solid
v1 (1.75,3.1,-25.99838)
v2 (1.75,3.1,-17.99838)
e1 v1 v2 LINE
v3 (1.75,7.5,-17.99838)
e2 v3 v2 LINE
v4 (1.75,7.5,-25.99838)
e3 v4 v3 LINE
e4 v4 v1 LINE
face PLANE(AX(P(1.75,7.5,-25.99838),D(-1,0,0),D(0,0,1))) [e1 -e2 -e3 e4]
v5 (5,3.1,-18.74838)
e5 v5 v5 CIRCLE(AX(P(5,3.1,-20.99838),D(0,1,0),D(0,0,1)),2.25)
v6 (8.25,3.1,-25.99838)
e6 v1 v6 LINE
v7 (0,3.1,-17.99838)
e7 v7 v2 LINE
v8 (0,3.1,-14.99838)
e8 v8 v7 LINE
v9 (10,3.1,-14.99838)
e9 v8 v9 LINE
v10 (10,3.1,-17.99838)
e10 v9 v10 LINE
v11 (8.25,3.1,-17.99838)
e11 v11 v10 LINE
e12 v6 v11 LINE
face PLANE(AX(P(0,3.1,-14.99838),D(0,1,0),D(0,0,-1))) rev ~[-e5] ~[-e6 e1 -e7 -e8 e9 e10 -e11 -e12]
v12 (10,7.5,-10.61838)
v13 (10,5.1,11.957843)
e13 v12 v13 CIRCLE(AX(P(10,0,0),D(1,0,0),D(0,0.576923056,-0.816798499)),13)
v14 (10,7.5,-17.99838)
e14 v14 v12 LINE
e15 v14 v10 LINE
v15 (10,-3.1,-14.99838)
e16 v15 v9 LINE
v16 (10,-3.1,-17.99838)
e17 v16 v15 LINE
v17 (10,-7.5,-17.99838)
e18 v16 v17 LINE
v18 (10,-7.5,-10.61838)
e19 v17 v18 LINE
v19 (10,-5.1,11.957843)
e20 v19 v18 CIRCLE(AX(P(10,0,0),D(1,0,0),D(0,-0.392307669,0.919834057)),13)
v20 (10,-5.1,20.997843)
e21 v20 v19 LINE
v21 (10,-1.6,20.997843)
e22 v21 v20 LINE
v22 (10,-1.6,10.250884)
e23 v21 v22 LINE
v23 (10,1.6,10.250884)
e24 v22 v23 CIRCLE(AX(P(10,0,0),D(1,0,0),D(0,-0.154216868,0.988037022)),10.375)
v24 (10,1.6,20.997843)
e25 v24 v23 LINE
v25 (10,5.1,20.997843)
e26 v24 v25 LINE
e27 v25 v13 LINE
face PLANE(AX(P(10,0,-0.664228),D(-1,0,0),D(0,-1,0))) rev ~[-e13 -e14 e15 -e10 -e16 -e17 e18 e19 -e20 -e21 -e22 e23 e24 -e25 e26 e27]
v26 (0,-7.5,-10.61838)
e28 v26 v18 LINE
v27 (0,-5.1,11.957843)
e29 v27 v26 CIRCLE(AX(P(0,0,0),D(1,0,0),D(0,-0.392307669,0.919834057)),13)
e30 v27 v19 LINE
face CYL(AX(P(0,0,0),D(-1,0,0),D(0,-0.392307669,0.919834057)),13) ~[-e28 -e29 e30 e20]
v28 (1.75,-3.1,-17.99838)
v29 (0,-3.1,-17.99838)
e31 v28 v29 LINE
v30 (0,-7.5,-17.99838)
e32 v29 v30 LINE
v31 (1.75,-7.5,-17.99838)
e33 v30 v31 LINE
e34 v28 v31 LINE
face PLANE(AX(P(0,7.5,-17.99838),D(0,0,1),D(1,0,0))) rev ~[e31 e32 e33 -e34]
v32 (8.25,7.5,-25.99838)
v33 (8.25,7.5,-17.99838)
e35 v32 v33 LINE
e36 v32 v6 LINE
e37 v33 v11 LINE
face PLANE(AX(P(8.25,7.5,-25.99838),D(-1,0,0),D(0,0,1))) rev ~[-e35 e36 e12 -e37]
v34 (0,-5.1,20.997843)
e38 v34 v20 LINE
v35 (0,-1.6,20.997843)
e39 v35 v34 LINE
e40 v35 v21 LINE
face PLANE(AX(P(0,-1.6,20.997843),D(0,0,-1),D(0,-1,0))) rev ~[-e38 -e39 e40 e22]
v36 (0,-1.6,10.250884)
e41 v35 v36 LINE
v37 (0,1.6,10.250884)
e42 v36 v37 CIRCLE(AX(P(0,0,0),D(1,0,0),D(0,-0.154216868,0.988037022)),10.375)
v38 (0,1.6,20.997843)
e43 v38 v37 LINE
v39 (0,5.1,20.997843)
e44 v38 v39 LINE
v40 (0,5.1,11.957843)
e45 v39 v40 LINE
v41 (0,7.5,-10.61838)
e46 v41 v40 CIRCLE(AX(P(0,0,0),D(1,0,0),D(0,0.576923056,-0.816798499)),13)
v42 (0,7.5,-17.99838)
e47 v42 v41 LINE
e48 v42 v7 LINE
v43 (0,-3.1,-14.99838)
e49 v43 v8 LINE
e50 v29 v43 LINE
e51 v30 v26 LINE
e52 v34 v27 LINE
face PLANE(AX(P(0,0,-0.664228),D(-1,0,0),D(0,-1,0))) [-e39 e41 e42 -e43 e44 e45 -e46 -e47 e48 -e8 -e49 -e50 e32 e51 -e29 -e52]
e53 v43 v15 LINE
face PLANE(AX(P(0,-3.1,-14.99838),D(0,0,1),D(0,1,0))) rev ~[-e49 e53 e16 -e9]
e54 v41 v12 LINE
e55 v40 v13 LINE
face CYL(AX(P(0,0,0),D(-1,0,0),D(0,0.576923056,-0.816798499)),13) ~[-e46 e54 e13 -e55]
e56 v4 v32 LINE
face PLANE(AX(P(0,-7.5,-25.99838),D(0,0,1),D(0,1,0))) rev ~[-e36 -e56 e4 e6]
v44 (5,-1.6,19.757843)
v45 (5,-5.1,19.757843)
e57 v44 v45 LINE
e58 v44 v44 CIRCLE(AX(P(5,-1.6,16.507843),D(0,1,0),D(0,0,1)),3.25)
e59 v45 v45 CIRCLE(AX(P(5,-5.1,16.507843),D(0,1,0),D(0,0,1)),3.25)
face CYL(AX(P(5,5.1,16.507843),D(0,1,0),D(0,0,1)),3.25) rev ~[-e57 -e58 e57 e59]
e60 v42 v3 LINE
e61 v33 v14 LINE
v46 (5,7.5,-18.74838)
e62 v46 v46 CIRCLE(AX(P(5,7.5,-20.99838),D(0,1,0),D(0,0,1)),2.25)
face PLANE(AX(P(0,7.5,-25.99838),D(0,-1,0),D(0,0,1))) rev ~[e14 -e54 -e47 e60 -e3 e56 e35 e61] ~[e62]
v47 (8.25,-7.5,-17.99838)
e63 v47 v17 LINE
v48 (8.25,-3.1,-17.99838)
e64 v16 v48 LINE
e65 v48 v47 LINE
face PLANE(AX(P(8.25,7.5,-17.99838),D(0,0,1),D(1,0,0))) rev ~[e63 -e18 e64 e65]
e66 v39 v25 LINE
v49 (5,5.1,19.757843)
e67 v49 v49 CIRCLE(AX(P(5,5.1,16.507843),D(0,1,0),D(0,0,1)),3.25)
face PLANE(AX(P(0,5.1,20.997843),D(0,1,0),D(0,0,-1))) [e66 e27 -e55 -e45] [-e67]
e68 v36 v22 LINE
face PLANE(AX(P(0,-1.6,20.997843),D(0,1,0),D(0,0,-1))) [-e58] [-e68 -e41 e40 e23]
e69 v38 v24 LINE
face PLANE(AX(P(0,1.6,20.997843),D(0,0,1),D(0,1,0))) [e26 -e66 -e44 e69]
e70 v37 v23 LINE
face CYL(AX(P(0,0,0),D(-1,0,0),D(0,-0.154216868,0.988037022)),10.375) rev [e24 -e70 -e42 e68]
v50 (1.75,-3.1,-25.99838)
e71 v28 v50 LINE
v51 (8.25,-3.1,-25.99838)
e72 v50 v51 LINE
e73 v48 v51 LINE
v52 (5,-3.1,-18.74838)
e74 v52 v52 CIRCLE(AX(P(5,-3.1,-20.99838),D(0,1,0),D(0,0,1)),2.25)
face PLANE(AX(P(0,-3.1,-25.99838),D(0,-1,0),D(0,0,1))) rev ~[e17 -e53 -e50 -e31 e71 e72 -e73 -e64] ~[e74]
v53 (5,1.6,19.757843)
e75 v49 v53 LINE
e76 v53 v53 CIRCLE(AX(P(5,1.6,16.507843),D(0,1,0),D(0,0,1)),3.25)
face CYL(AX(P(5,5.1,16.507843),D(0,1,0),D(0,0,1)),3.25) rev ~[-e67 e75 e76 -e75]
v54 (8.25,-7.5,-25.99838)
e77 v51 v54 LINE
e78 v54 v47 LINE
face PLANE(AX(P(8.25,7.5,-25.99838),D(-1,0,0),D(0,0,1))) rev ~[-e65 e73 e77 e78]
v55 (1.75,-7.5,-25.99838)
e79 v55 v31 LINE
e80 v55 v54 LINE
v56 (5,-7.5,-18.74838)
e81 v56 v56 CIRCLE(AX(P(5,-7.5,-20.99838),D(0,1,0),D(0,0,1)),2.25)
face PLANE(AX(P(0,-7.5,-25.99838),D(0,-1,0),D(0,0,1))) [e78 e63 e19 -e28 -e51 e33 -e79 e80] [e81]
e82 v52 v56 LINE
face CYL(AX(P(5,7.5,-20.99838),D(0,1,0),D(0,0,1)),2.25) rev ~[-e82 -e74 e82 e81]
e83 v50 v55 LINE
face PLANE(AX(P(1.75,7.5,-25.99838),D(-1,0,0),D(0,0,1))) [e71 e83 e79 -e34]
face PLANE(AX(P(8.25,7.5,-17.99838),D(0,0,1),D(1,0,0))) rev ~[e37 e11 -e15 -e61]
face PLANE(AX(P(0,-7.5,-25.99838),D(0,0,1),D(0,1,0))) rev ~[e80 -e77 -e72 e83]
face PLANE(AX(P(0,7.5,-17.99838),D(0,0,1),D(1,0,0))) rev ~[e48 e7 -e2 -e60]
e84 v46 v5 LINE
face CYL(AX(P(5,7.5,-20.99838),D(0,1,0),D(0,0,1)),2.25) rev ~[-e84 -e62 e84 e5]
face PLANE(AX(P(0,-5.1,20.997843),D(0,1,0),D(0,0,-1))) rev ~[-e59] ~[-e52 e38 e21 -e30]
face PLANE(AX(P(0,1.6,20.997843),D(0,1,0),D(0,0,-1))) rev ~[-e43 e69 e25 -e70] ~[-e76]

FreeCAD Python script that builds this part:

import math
import FreeCAD as App
import Part
import Sketcher
Q = App.Units.Quantity

doc = App.newDocument("Part")
body = doc.addObject("PartDesign::Body", "Body")

sketch1 = body.newObject("Sketcher::SketchObject", "Sketch")
sketch1.AttachmentSupport = (doc.getObject("YZ_Plane"), [""])
sketch1.MapMode = "FlatFace"
sketch1.addGeometry(Part.ArcOfCircle(Part.Circle(App.Vector(0, 0, 0), App.Vector(0, 0, 1), 10.4), math.radians(99), math.radians(441)), False)
sketch1.addGeometry(Part.LineSegment(App.Vector(-1.6, 10.3, 0), App.Vector(-1.6, 21, 0)), False)
sketch1.addGeometry(Part.LineSegment(App.Vector(-1.6, 21, 0), App.Vector(-5.1, 21, 0)), False)
sketch1.addGeometry(Part.LineSegment(App.Vector(-5.1, 21, 0), App.Vector(-5.1, 12, 0)), False)
sketch1.addGeometry(Part.ArcOfCircle(Part.Circle(App.Vector(0, 0, 0), App.Vector(0, 0, 1), 13), math.radians(113), math.radians(235)), False)
sketch1.addGeometry(Part.LineSegment(App.Vector(-7.5, -10.6, 0), App.Vector(-7.5, -26, 0)), False)
sketch1.addGeometry(Part.LineSegment(App.Vector(-7.5, -26, 0), App.Vector(7.5, -26, 0)), False)
sketch1.addGeometry(Part.LineSegment(App.Vector(7.5, -26, 0), App.Vector(7.5, -10.6, 0)), False)
sketch1.addGeometry(Part.ArcOfCircle(Part.Circle(App.Vector(0, 0, 0), App.Vector(0, 0, 1), 13), math.radians(-55), math.radians(67)), False)
sketch1.addGeometry(Part.LineSegment(App.Vector(5.1, 12, 0), App.Vector(5.1, 21, 0)), False)
sketch1.addGeometry(Part.LineSegment(App.Vector(5.1, 21, 0), App.Vector(1.6, 21, 0)), False)
sketch1.addGeometry(Part.LineSegment(App.Vector(1.6, 21, 0), App.Vector(1.6, 10.3, 0)), False)
sketch1.addConstraint(Sketcher.Constraint("Coincident", 0, 1, 1, 1))
sketch1.addConstraint(Sketcher.Constraint("Coincident", 1, 2, 2, 1))
sketch1.addConstraint(Sketcher.Constraint("Coincident", 2, 2, 3, 1))
sketch1.addConstraint(Sketcher.Constraint("Coincident", 3, 2, 4, 1))
sketch1.addConstraint(Sketcher.Constraint("Coincident", 4, 2, 5, 1))
sketch1.addConstraint(Sketcher.Constraint("Coincident", 5, 2, 6, 1))
sketch1.addConstraint(Sketcher.Constraint("Coincident", 6, 2, 7, 1))
sketch1.addConstraint(Sketcher.Constraint("Coincident", 7, 2, 8, 1))
sketch1.addConstraint(Sketcher.Constraint("Coincident", 8, 2, 9, 1))
sketch1.addConstraint(Sketcher.Constraint("Coincident", 9, 2, 10, 1))
sketch1.addConstraint(Sketcher.Constraint("Coincident", 10, 2, 11, 1))
sketch1.addConstraint(Sketcher.Constraint("Coincident", 11, 2, 0, 2))
sketch1.addConstraint(Sketcher.Constraint("Vertical", 1))
sketch1.addConstraint(Sketcher.Constraint("Horizontal", 2))
sketch1.addConstraint(Sketcher.Constraint("Vertical", 3))
sketch1.addConstraint(Sketcher.Constraint("Vertical", 5))
sketch1.addConstraint(Sketcher.Constraint("Horizontal", 6))
sketch1.addConstraint(Sketcher.Constraint("Vertical", 7))
sketch1.addConstraint(Sketcher.Constraint("Vertical", 9))
sketch1.addConstraint(Sketcher.Constraint("Horizontal", 10))
sketch1.addConstraint(Sketcher.Constraint("Vertical", 11))
sketch1.addConstraint(Sketcher.Constraint("Coincident", 0, 3, -1, 1))
sketch1.addConstraint(Sketcher.Constraint("Coincident", 4, 3, -1, 1))
sketch1.addConstraint(Sketcher.Constraint("Coincident", 8, 3, -1, 1))
sketch1.addConstraint(Sketcher.Constraint("Equal", 4, 8))
sketch1.addConstraint(Sketcher.Constraint("Symmetric", 2, 2, 9, 2, -2))
sketch1.addConstraint(Sketcher.Constraint("Horizontal", 4, 2, 7, 2))
sketch1.addConstraint(Sketcher.Constraint("Horizontal", 0, 1, 11, 2))
sketch1.addConstraint(Sketcher.Constraint("Radius", 4, Q("13 mm")))
sketch1.addConstraint(Sketcher.Constraint("DistanceX", 6, 1, 6, 2, Q("15 mm")))
sketch1.addConstraint(Sketcher.Constraint("DistanceX", 2, 2, 2, 1, Q("3.5 mm")))
sketch1.addConstraint(Sketcher.Constraint("Radius", 0, Q("10.375 mm")))
sketch1.addConstraint(Sketcher.Constraint("DistanceY", 3, 2, 3, 1, Q("9.04 mm")))
sketch1.addConstraint(Sketcher.Constraint("DistanceY", 5, 2, 5, 1, Q("15.38 mm")))
sketch1.addConstraint(Sketcher.Constraint("DistanceX", 0, 1, -1, 1, Q("1.6 mm")))
pad1 = body.newObject("PartDesign::Pad", "Pad")
pad1.Profile = sketch1
pad1.Length = 10

sketch2 = body.newObject("Sketcher::SketchObject", "Sketch001")
sketch2.AttachmentSupport = (doc.getObject("YZ_Plane"), [""])
sketch2.MapMode = "FlatFace"
sketch2.addGeometry(Part.LineSegment(App.Vector(-3, -26, 0), App.Vector(-3, -15, 0)), False)
sketch2.addGeometry(Part.LineSegment(App.Vector(-3, -15, 0), App.Vector(3, -15, 0)), False)
sketch2.addGeometry(Part.LineSegment(App.Vector(3, -15, 0), App.Vector(3, -26, 0)), False)
sketch2.addGeometry(Part.LineSegment(App.Vector(3, -26, 0), App.Vector(-3, -26, 0)), False)
sketch2.addConstraint(Sketcher.Constraint("Coincident", 0, 2, 1, 1))
sketch2.addConstraint(Sketcher.Constraint("Coincident", 1, 2, 2, 1))
sketch2.addConstraint(Sketcher.Constraint("Coincident", 2, 2, 3, 1))
sketch2.addConstraint(Sketcher.Constraint("Coincident", 3, 2, 0, 1))
sketch2.addConstraint(Sketcher.Constraint("Vertical", 0))
sketch2.addConstraint(Sketcher.Constraint("Horizontal", 1))
sketch2.addConstraint(Sketcher.Constraint("Vertical", 2))
sketch2.addConstraint(Sketcher.Constraint("Horizontal", 3))
sketch2.addConstraint(Sketcher.Constraint("DistanceY", 0, 1, 0, 2, Q("11 mm")))
sketch2.addConstraint(Sketcher.Constraint("DistanceX", 1, 1, 1, 2, Q("6.2 mm")))
sketch2.addConstraint(Sketcher.Constraint("DistanceX", 0, 2, -1, 1, Q("3.1 mm")))
sketch2.addConstraint(Sketcher.Constraint("DistanceY", 0, 2, -1, 1, Q("14.99838 mm")))
pocket1 = body.newObject("PartDesign::Pocket", "Pocket")
pocket1.Profile = sketch2
pocket1.Length = 10
pocket1.Reversed = True

sketch3 = body.newObject("Sketcher::SketchObject", "Sketch002")
sketch3.AttachmentSupport = (doc.getObject("XZ_Plane"), [""])
sketch3.MapMode = "FlatFace"
sketch3.AttachmentOffset = App.Placement(App.Vector(0, 0, -5.1), App.Rotation())
sketch3.addGeometry(Part.Circle(App.Vector(5, 16.5, 0), App.Vector(0, 0, 1), 3.2), False)
sketch3.addConstraint(Sketcher.Constraint("Diameter", 0, Q("6.5 mm")))
sketch3.addConstraint(Sketcher.Constraint("DistanceX", -1, 1, 0, 3, Q("5 mm")))
sketch3.addConstraint(Sketcher.Constraint("DistanceY", -1, 1, 0, 3, Q("16.507843 mm")))
pocket2 = body.newObject("PartDesign::Pocket", "Pocket001")
pocket2.Profile = sketch3
pocket2.Length = 15
pocket2.Reversed = True

sketch4 = body.newObject("Sketcher::SketchObject", "Sketch003")
sketch4.AttachmentSupport = (doc.getObject("XZ_Plane"), [""])
sketch4.MapMode = "FlatFace"
sketch4.AttachmentOffset = App.Placement(App.Vector(0, 0, -7.5), App.Rotation())
sketch4.addGeometry(Part.Circle(App.Vector(5, -21, 0), App.Vector(0, 0, 1), 2.2), False)
sketch4.addConstraint(Sketcher.Constraint("Diameter", 0, Q("4.5 mm")))
sketch4.addConstraint(Sketcher.Constraint("DistanceX", -1, 1, 0, 3, Q("5 mm")))
sketch4.addConstraint(Sketcher.Constraint("DistanceY", 0, 3, -1, 1, Q("20.99838 mm")))
pocket3 = body.newObject("PartDesign::Pocket", "Pocket002")
pocket3.Profile = sketch4
pocket3.Length = 15
pocket3.Reversed = True

sketch5 = body.newObject("Sketcher::SketchObject", "Sketch004")
sketch5.AttachmentSupport = (doc.getObject("XZ_Plane"), [""])
sketch5.MapMode = "FlatFace"
sketch5.AttachmentOffset = App.Placement(App.Vector(0, 0, -7.5), App.Rotation())
sketch5.addGeometry(Part.LineSegment(App.Vector(10, -26, 0), App.Vector(8.2, -26, 0)), False)
sketch5.addGeometry(Part.LineSegment(App.Vector(8.2, -26, 0), App.Vector(8.2, -18, 0)), False)
sketch5.addGeometry(Part.LineSegment(App.Vector(8.2, -18, 0), App.Vector(10, -18, 0)), False)
sketch5.addGeometry(Part.LineSegment(App.Vector(10, -18, 0), App.Vector(10, -26, 0)), False)
sketch5.addGeometry(Part.LineSegment(App.Vector(1.8, -26, 0), App.Vector(0, -26, 0)), False)
sketch5.addGeometry(Part.LineSegment(App.Vector(0, -26, 0), App.Vector(0, -18, 0)), False)
sketch5.addGeometry(Part.LineSegment(App.Vector(0, -18, 0), App.Vector(1.8, -18, 0)), False)
sketch5.addGeometry(Part.LineSegment(App.Vector(1.8, -18, 0), App.Vector(1.8, -26, 0)), False)
sketch5.addConstraint(Sketcher.Constraint("Coincident", 0, 2, 1, 1))
sketch5.addConstraint(Sketcher.Constraint("Coincident", 1, 2, 2, 1))
sketch5.addConstraint(Sketcher.Constraint("Coincident", 2, 2, 3, 1))
sketch5.addConstraint(Sketcher.Constraint("Coincident", 3, 2, 0, 1))
sketch5.addConstraint(Sketcher.Constraint("Coincident", 4, 2, 5, 1))
sketch5.addConstraint(Sketcher.Constraint("Coincident", 5, 2, 6, 1))
sketch5.addConstraint(Sketcher.Constraint("Coincident", 6, 2, 7, 1))
sketch5.addConstraint(Sketcher.Constraint("Coincident", 7, 2, 4, 1))
sketch5.addConstraint(Sketcher.Constraint("Horizontal", 0))
sketch5.addConstraint(Sketcher.Constraint("Vertical", 1))
sketch5.addConstraint(Sketcher.Constraint("Horizontal", 2))
sketch5.addConstraint(Sketcher.Constraint("Vertical", 3))
sketch5.addConstraint(Sketcher.Constraint("Horizontal", 4))
sketch5.addConstraint(Sketcher.Constraint("Vertical", 5))
sketch5.addConstraint(Sketcher.Constraint("Horizontal", 6))
sketch5.addConstraint(Sketcher.Constraint("Vertical", 7))
sketch5.addConstraint(Sketcher.Constraint("PointOnObject", 4, 2, -2))
sketch5.addConstraint(Sketcher.Constraint("Horizontal", 3, 2, 4, 2))
sketch5.addConstraint(Sketcher.Constraint("Horizontal", 2, 2, 5, 2))
sketch5.addConstraint(Sketcher.Constraint("Equal", 2, 4))
sketch5.addConstraint(Sketcher.Constraint("DistanceY", 1, 1, 1, 2, Q("8 mm")))
sketch5.addConstraint(Sketcher.Constraint("DistanceX", -1, 1, 2, 2, Q("10 mm")))
sketch5.addConstraint(Sketcher.Constraint("DistanceX", 0, 2, 0, 1, Q("1.75 mm")))
sketch5.addConstraint(Sketcher.Constraint("DistanceY", 0, 2, -1, 1, Q("25.99838 mm")))
pocket4 = body.newObject("PartDesign::Pocket", "Pocket003")
pocket4.Profile = sketch5
pocket4.Length = 15
pocket4.Reversed = True

doc.recompute()
